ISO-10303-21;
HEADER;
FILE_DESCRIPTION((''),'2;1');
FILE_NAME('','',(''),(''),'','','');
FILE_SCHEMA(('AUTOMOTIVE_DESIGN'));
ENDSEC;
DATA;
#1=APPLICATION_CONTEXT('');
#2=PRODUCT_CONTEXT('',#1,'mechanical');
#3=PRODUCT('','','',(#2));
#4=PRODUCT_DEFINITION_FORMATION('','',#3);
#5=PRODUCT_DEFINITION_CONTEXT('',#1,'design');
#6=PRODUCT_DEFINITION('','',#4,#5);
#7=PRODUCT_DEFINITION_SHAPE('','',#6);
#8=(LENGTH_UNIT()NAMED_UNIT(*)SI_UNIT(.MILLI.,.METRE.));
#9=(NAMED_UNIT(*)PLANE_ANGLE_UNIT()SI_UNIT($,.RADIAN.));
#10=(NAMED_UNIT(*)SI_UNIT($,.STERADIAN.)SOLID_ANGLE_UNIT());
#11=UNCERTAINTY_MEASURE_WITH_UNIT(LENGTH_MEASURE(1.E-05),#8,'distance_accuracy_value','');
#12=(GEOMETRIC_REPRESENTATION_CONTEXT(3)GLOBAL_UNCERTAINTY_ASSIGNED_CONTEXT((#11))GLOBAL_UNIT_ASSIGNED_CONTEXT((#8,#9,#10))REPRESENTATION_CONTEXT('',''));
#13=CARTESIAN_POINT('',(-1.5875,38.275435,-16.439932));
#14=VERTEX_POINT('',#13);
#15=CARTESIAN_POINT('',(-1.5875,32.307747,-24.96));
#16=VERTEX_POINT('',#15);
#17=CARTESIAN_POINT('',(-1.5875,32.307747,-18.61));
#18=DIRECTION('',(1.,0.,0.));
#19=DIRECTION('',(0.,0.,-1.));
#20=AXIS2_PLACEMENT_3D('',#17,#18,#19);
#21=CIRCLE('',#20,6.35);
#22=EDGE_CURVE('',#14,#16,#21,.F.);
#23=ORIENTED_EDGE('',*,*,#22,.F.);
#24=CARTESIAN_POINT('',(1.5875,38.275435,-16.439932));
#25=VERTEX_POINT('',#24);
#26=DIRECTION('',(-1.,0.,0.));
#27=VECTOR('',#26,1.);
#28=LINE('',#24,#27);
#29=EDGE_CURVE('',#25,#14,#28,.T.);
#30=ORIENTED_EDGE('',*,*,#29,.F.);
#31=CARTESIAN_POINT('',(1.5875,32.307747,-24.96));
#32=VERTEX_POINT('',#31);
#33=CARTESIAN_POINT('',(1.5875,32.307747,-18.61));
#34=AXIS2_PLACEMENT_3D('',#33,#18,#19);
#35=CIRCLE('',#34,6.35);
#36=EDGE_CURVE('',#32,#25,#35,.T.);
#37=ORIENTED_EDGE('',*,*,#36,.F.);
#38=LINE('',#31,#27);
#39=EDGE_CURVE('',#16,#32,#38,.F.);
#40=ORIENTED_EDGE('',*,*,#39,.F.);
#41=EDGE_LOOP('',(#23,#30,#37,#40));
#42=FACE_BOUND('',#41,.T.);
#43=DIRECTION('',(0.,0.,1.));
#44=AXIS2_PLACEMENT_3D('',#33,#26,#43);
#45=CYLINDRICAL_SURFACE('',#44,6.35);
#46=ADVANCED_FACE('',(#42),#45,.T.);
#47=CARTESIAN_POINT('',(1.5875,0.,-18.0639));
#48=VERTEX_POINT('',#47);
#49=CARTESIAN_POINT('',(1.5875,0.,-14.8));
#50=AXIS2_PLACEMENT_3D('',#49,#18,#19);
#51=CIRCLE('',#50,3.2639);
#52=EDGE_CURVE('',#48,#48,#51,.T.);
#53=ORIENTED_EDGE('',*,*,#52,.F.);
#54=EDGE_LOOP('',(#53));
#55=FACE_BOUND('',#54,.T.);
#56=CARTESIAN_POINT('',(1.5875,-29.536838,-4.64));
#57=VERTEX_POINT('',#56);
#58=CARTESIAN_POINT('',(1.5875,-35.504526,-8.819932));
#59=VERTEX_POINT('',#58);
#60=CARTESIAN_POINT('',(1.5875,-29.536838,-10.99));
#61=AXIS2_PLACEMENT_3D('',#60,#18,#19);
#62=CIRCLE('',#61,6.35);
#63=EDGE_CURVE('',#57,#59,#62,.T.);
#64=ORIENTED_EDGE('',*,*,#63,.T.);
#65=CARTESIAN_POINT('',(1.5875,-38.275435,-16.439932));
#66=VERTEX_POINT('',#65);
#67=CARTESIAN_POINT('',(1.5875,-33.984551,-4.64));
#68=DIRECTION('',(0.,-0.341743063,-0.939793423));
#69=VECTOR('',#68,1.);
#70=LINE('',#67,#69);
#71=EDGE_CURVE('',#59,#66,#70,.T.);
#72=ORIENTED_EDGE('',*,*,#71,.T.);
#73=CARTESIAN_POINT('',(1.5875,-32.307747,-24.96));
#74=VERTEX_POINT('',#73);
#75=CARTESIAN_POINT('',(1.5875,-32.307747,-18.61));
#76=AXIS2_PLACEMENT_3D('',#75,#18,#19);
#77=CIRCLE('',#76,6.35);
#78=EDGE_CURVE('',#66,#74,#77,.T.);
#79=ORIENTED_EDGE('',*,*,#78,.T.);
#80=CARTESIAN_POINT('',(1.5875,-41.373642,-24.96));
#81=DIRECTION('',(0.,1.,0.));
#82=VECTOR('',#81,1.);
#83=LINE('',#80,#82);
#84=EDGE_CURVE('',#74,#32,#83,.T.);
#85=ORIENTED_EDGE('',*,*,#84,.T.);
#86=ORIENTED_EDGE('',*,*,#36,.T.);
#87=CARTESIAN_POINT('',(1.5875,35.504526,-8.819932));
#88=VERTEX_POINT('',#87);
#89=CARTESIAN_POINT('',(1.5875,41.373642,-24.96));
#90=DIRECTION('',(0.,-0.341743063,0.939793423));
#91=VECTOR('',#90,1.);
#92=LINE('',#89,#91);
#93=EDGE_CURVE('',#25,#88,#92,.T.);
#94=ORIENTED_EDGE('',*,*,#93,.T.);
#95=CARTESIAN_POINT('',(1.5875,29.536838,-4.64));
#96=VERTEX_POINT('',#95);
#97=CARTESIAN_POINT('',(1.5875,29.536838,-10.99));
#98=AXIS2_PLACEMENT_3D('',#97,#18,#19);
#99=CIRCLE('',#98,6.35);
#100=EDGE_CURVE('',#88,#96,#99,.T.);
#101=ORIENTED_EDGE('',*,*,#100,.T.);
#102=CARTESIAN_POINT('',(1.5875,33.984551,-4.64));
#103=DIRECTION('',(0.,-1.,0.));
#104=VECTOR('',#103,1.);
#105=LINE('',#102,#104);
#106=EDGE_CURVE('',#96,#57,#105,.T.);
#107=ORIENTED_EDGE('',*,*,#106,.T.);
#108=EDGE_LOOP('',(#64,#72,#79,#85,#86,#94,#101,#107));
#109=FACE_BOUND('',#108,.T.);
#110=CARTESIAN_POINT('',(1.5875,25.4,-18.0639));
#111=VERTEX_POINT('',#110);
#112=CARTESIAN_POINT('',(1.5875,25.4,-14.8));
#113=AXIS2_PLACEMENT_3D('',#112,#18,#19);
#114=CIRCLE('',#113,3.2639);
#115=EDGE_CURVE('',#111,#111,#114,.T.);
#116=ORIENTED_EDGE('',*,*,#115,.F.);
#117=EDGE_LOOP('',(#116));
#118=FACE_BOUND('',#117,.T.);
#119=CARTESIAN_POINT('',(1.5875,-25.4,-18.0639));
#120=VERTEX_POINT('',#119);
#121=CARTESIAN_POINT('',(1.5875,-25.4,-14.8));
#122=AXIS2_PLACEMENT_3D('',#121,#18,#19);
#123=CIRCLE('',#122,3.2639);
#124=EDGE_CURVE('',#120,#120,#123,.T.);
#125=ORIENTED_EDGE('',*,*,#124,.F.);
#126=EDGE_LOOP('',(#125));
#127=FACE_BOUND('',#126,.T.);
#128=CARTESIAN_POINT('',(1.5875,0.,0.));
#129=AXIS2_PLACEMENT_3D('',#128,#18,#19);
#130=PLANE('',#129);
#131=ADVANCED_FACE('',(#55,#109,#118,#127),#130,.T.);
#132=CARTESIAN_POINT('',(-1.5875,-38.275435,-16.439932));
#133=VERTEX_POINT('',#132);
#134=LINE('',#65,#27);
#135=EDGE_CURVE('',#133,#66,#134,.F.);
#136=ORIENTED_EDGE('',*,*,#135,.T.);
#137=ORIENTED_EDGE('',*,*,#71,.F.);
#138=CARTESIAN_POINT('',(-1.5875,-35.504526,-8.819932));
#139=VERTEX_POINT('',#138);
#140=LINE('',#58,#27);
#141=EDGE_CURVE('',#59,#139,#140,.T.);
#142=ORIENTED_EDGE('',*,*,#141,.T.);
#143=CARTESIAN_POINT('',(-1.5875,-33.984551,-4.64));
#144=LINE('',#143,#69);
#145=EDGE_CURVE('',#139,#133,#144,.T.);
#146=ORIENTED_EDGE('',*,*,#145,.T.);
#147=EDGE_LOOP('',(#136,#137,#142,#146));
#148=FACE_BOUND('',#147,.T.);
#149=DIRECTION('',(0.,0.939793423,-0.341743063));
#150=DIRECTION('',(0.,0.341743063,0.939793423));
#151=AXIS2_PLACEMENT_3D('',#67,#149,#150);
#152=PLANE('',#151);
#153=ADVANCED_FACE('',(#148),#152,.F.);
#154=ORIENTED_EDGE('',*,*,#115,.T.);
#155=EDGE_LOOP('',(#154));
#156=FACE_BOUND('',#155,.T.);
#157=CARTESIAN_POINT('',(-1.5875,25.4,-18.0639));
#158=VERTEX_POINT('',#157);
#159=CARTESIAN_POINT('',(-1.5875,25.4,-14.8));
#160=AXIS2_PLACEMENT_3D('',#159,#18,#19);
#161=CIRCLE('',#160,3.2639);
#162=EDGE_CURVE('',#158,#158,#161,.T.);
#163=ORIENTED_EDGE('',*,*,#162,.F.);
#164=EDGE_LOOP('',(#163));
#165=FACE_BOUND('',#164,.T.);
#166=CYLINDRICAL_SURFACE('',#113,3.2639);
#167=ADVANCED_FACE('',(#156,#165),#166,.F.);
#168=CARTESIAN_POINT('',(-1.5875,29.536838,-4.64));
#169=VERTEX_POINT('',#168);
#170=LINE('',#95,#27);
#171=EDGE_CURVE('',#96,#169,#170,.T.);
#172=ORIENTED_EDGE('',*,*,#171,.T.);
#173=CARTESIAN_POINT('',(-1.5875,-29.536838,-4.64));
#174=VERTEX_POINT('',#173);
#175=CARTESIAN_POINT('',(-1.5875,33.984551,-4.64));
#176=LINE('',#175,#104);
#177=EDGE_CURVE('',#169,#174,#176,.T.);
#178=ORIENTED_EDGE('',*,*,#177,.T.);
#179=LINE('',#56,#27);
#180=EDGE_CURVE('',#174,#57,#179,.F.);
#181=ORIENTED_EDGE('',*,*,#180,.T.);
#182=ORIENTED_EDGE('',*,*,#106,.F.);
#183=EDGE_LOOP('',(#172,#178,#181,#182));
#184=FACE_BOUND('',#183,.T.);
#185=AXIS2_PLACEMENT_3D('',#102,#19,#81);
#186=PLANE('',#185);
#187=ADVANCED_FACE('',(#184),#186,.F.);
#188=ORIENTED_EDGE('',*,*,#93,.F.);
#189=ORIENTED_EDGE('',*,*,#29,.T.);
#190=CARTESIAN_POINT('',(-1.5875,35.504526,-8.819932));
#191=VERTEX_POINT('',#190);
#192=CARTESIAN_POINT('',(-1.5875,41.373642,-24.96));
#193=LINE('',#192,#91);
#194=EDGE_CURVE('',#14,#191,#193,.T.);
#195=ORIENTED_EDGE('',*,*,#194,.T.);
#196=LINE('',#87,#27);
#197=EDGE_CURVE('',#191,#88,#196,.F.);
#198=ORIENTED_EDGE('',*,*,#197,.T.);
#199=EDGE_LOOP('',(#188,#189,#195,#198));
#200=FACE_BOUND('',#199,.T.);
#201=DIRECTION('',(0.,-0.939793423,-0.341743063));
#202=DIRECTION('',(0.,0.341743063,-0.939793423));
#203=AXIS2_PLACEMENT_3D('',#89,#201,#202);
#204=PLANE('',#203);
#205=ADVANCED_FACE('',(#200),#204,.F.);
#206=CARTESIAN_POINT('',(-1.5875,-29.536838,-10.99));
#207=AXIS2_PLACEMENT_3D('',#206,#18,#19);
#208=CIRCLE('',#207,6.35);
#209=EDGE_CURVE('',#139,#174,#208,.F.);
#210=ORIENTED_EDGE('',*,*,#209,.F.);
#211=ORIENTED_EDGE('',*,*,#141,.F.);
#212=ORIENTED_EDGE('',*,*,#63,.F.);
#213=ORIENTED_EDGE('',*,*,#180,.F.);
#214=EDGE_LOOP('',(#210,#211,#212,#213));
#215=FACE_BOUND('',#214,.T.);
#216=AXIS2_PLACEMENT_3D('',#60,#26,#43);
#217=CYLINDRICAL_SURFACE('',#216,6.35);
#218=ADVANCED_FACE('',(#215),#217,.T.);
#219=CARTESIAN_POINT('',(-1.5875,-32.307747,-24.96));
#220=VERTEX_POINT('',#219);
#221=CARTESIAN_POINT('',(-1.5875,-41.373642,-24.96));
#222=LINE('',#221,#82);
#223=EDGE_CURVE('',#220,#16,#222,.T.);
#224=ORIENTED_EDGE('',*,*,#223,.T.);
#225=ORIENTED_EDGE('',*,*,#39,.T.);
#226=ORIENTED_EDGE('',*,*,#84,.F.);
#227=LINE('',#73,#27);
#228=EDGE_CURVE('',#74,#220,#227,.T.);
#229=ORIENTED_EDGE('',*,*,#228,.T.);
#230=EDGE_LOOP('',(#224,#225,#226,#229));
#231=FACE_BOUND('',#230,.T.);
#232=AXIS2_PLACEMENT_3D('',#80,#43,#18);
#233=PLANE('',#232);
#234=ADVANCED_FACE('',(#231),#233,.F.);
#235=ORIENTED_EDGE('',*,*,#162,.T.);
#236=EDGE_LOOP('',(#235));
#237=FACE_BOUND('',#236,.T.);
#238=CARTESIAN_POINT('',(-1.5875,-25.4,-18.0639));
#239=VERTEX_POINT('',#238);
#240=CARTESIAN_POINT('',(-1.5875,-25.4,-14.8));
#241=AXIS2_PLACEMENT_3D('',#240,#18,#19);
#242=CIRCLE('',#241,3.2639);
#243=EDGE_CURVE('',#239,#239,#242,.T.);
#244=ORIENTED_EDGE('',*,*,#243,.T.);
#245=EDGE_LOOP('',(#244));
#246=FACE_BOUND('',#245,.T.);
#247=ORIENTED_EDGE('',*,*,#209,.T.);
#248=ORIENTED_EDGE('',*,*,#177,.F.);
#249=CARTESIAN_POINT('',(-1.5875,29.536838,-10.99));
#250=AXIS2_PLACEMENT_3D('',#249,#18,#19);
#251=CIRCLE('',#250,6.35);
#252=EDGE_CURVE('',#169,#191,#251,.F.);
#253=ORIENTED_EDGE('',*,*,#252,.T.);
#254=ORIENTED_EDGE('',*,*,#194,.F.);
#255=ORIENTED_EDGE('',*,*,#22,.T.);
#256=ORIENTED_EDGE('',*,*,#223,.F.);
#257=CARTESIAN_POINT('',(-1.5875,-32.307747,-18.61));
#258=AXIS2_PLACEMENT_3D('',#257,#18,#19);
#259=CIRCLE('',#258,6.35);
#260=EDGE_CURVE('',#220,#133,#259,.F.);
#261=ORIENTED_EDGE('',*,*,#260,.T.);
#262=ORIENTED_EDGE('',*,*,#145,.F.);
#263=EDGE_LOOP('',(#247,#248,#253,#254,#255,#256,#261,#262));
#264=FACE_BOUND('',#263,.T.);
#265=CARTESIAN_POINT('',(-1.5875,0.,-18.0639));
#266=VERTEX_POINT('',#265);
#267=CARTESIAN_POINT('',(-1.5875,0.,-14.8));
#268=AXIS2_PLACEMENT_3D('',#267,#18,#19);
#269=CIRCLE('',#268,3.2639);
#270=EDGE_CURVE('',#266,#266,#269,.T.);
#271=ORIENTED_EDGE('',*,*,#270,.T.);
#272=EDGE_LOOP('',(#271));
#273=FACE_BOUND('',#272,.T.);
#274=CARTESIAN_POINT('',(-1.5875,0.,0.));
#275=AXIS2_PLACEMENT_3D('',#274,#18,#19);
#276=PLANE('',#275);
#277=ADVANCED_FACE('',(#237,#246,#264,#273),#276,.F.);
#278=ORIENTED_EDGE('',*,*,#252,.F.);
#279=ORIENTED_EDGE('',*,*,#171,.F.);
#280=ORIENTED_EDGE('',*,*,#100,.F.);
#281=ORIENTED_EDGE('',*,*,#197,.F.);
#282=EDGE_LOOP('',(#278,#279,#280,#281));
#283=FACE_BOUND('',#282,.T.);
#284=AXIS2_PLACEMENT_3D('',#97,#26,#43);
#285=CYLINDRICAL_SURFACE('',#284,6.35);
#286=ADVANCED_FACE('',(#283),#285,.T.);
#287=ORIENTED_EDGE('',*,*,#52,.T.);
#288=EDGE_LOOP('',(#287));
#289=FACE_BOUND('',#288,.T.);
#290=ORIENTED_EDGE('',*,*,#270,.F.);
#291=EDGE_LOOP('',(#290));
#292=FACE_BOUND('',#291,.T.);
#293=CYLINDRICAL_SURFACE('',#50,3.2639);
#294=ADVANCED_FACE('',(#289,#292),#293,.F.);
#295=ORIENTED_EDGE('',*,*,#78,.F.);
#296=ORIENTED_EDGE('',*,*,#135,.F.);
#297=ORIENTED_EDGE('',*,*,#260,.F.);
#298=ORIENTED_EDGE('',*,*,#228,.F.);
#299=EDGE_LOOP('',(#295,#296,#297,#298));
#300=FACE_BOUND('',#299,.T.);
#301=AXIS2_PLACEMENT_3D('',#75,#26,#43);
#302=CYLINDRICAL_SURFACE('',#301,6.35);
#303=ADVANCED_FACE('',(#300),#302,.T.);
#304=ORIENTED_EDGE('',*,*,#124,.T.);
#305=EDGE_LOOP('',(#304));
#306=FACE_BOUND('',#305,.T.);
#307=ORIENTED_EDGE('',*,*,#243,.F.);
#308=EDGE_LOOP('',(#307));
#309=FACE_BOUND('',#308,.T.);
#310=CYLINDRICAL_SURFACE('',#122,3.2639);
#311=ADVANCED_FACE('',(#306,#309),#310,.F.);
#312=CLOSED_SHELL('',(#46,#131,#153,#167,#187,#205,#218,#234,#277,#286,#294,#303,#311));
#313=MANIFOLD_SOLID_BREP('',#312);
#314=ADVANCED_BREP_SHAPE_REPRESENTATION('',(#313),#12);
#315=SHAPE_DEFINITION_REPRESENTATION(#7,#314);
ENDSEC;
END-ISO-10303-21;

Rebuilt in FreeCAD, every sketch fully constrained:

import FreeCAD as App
import Part
import Sketcher
Q = App.Units.Quantity


def edges_at(feature, points):
    """Names of the edges that pass closest to the given points."""
    edges = feature.Shape.Edges
    near = lambda p: min(range(len(edges)), key=lambda i: edges[i].distToShape(Part.Vertex(*p))[0])
    return sorted({f"Edge{near(p) + 1}" for p in points})

doc = App.newDocument("Part")
body = doc.addObject("PartDesign::Body", "Body")

# Sketch on YZ plane
sketch1 = body.newObject("Sketcher::SketchObject", "Sketch")
sketch1.AttachmentSupport = (doc.getObject("YZ_Plane"), [""])
sketch1.MapMode = "FlatFace"
sketch1.addGeometry(Part.LineSegment(App.Vector(33.984551, -4.64, 0), App.Vector(-33.984551, -4.64, 0)), False)
sketch1.addGeometry(Part.LineSegment(App.Vector(-33.984551, -4.64, 0), App.Vector(-41.373642, -24.96, 0)), False)
sketch1.addGeometry(Part.LineSegment(App.Vector(-41.373642, -24.96, 0), App.Vector(41.373642, -24.96, 0)), False)
sketch1.addGeometry(Part.LineSegment(App.Vector(41.373642, -24.96, 0), App.Vector(33.984551, -4.64, 0)), False)
sketch1.addConstraint(Sketcher.Constraint("Coincident", 0, 2, 1, 1))
sketch1.addConstraint(Sketcher.Constraint("Coincident", 1, 2, 2, 1))
sketch1.addConstraint(Sketcher.Constraint("Coincident", 2, 2, 3, 1))
sketch1.addConstraint(Sketcher.Constraint("Coincident", 3, 2, 0, 1))
sketch1.addConstraint(Sketcher.Constraint("Horizontal", 0))
sketch1.addConstraint(Sketcher.Constraint("Horizontal", 2))
sketch1.addConstraint(Sketcher.Constraint("Equal", 1, 3))
sketch1.addConstraint(Sketcher.Constraint("DistanceY", 1, 2, 0, 2, Q("0.8 in")))
sketch1.addConstraint(Sketcher.Constraint("DistanceY", 0, 2, -1, 1, Q("4.64 mm")))
sketch1.addConstraint(Sketcher.Constraint("DistanceX", 0, 2, 0, 1, Q("67.969102 mm")))
sketch1.addConstraint(Sketcher.Constraint("DistanceX", 2, 1, 2, 2, Q("82.747284 mm")))
sketch1.addConstraint(Sketcher.Constraint("DistanceX", 0, 2, -1, 1, Q("33.984551 mm")))
pad1 = body.newObject("PartDesign::Pad", "Pad")
pad1.Profile = sketch1
pad1.Length = Q("0.125 in")
pad1.Midplane = True

# Sketch on YZ plane
sketch2 = body.newObject("Sketcher::SketchObject", "Sketch001")
sketch2.AttachmentSupport = (doc.getObject("YZ_Plane"), [""])
sketch2.MapMode = "FlatFace"
sketch2.AttachmentOffset = App.Placement(App.Vector(0, 0, 0.0625 * 25.4), App.Rotation())
sketch2.addGeometry(Part.Circle(App.Vector(0, -14.8, 0), App.Vector(0, 0, 1), 3.2639), False)
sketch2.addGeometry(Part.Circle(App.Vector(25.4, -14.8, 0), App.Vector(0, 0, 1), 3.2639), False)
sketch2.addGeometry(Part.Circle(App.Vector(-25.4, -14.8, 0), App.Vector(0, 0, 1), 3.2639), False)
sketch2.addConstraint(Sketcher.Constraint("Equal", 0, 1))
sketch2.addConstraint(Sketcher.Constraint("Equal", 1, 2))
sketch2.addConstraint(Sketcher.Constraint("Symmetric", 1, 3, 2, 3, -2))
sketch2.addConstraint(Sketcher.Constraint("PointOnObject", 0, 3, -2))
sketch2.addConstraint(Sketcher.Constraint("Horizontal", 0, 3, 1, 3))
sketch2.addConstraint(Sketcher.Constraint("Diameter", 0, Q("0.257 in")))
sketch2.addConstraint(Sketcher.Constraint("DistanceX", -1, 1, 1, 3, Q("1 in")))
sketch2.addConstraint(Sketcher.Constraint("DistanceY", 0, 3, -1, 1, Q("14.8 mm")))
doc.recompute()
hole = body.newObject("PartDesign::Hole", "Hole")
hole.Profile = sketch2
hole.ThreadType = "None"
hole.Diameter = Q("0.257 in")
hole.DepthType = "ThroughAll"
doc.recompute()

fillet = body.newObject("PartDesign::Fillet", "Fillet")
fillet.Base = (hole, edges_at(hole, [
    (0, 41.374, -24.96),
    (0, -41.374, -24.96),
    (0, -33.985, -4.64),
    (0, 33.985, -4.64),
]))
fillet.Radius = Q("0.25 in")

doc.recompute()
